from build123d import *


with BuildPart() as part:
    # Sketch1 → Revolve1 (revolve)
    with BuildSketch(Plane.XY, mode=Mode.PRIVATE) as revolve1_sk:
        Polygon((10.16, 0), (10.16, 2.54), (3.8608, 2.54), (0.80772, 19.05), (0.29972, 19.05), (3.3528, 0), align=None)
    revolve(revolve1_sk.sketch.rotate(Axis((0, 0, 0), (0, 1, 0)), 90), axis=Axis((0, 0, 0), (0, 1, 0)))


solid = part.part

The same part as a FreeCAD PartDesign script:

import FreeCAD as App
import Part
import Sketcher
Q = App.Units.Quantity


def add_polygon(sketch, points):
    """Adds a closed chain of lines whose ends are joined by coincident constraints."""
    first, n = sketch.GeometryCount, len(points)
    for a, b in zip(points, points[1:] + points[:1]):
        sketch.addGeometry(Part.LineSegment(App.Vector(*a, 0), App.Vector(*b, 0)), False)
    for i in range(n):
        sketch.addConstraint(Sketcher.Constraint("Coincident", first + i, 2, first + (i + 1) % n, 1))

doc = App.newDocument("Part")
params = doc.addObject("Spreadsheet::Sheet", "Params")
for row, (alias, value) in enumerate([
    ("sketch1_height", "0.1 in"),
    ("sketch1_width", "0.02 in"),
    ("sketch1_width2", "0.248 in"),
    ("sketch1_width3", "0.268 in"),
    ("revolution_angle", "360 deg"),
], start=1):
    params.set(f"A{row}", alias)
    params.set(f"B{row}", "=" + value)
    params.setAlias(f"B{row}", alias)

body = doc.addObject("PartDesign::Body", "Body")

sketch1 = doc.addObject("Sketcher::SketchObject", "Sketch")
body.addObject(sketch1)
sketch1.AttachmentSupport = (doc.XY_Plane, [""])
sketch1.MapMode = "FlatFace"
add_polygon(sketch1, [(10.2, 0), (10.2, 2.5), (3.9, 2.5), (0.8, 19.1), (0.3, 19.1), (3.4, 0)])
sketch1.addConstraint(Sketcher.Constraint("Vertical", 0))
sketch1.addConstraint(Sketcher.Constraint("Horizontal", 1))
sketch1.addConstraint(Sketcher.Constraint("Horizontal", 3))
sketch1.addConstraint(Sketcher.Constraint("Horizontal", 5))
sketch1.addConstraint(Sketcher.Constraint("PointOnObject", 4, 2, -1))
sketch1.addConstraint(Sketcher.Constraint("DistanceY", 0, 1, 0, 2, Q("0.1 in")))
sketch1.addConstraint(Sketcher.Constraint("DistanceX", 3, 2, 3, 1, Q("0.02 in")))
sketch1.addConstraint(Sketcher.Constraint("DistanceX", -1, 1, 0, 2, Q("0.4 in")))
sketch1.addConstraint(Sketcher.Constraint("DistanceX", 1, 2, 1, 1, Q("0.248 in")))
sketch1.addConstraint(Sketcher.Constraint("DistanceX", 5, 1, 5, 2, Q("0.268 in")))
sketch1.addConstraint(Sketcher.Constraint("DistanceY", -1, 1, 2, 2, Q("0.75 in")))
sketch1.addConstraint(Sketcher.Constraint("DistanceX", -1, 1, 2, 2, Q("0.0318 in")))
sketch1.setExpression("Constraints[11]", "Params.sketch1_height")
sketch1.setExpression("Constraints[12]", "Params.sketch1_width")
sketch1.setExpression("Constraints[14]", "Params.sketch1_width2")
sketch1.setExpression("Constraints[15]", "Params.sketch1_width3")
revolution = doc.addObject("PartDesign::Revolution", "Revolution")
body.addObject(revolution)
revolution.Profile = sketch1
revolution.ReferenceAxis = (sketch1, ["V_Axis"])
revolution.setExpression("Angle", "Params.revolution_angle")

doc.recompute()
